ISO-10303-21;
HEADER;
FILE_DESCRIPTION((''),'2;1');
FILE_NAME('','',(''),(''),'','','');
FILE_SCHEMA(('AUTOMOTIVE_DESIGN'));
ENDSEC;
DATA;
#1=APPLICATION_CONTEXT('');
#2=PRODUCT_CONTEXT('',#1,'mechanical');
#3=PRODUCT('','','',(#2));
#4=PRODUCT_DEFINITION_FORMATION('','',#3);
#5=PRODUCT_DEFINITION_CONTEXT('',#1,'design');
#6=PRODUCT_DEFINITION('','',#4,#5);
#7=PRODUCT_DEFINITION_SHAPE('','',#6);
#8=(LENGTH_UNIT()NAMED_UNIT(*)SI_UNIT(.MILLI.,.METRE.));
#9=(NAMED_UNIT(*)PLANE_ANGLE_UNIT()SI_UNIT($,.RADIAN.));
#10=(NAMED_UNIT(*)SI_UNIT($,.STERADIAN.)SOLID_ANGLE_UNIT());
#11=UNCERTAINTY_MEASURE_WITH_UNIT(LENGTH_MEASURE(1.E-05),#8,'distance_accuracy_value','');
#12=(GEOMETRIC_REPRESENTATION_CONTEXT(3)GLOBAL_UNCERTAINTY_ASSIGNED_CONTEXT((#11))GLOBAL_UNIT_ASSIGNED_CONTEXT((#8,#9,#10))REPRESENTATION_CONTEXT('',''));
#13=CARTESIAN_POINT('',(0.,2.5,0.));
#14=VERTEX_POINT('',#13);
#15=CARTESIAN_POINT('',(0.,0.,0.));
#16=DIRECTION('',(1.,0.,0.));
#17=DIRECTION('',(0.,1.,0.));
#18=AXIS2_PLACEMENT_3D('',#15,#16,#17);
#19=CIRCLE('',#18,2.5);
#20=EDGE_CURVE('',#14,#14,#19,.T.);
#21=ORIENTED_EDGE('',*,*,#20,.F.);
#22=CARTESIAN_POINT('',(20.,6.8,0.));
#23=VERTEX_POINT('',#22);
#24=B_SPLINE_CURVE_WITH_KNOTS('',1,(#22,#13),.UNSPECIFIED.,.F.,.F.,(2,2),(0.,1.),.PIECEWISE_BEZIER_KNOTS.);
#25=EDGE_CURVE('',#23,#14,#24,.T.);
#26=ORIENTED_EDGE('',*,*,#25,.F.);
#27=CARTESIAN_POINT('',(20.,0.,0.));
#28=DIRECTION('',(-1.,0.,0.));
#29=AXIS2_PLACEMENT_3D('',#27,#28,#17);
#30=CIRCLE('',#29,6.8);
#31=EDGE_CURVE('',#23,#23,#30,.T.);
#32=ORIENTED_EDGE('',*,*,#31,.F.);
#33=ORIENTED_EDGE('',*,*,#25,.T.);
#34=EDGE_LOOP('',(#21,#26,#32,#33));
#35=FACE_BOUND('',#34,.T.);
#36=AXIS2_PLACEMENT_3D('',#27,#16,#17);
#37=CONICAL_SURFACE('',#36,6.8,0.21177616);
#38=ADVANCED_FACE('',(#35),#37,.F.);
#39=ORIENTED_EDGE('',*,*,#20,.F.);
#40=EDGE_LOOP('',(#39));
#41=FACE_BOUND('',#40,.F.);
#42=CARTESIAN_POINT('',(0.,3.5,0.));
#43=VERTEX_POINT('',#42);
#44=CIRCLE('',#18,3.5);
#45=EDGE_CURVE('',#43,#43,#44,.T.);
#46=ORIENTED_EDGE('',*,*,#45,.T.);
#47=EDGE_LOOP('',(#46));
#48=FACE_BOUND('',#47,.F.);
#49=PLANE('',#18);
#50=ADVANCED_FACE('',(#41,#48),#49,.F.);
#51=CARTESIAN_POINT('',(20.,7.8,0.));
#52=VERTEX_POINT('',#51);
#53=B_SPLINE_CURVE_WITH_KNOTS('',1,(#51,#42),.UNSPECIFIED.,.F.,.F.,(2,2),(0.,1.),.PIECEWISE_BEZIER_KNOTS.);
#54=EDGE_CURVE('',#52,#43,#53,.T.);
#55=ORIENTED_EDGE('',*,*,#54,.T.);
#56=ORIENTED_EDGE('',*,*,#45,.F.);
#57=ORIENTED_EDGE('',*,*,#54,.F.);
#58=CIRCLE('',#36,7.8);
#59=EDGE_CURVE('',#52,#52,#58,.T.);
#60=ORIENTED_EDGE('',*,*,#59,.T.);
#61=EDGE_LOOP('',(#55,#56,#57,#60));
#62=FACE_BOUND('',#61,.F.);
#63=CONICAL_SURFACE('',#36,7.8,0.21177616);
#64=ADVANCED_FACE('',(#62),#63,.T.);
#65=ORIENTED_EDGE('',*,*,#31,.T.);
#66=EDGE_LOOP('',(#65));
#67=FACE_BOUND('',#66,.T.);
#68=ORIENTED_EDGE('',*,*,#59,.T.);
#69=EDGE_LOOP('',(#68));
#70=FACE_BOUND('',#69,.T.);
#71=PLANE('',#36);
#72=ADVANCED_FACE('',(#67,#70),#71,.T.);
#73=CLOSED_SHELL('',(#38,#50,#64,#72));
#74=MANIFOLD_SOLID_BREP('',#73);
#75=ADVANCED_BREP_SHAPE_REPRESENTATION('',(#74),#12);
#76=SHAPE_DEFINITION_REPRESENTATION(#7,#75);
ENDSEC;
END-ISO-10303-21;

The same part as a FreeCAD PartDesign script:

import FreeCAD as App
import Part
import Sketcher

doc = App.newDocument("Part")
body = doc.addObject("PartDesign::Body", "Body")

# Sketch on YZ plane
sketch1 = body.newObject("Sketcher::SketchObject", "Sketch")
sketch1.AttachmentSupport = (doc.getObject("YZ_Plane"), [""])
sketch1.MapMode = "FlatFace"
sketch1.AttachmentOffset = App.Placement(App.Vector(0, 0, 20), App.Rotation())
sketch1.addGeometry(Part.Circle(App.Vector(0, 0, 0), App.Vector(0, 0, 1), 8), False)
sketch1.addConstraint([
    Sketcher.Constraint("Coincident", 0, 3, -1, 1),
    Sketcher.Constraint("Diameter", 0, 15.6),
])

# Sketch on YZ plane
sketch2 = body.newObject("Sketcher::SketchObject", "Sketch001")
sketch2.AttachmentSupport = (doc.getObject("YZ_Plane"), [""])
sketch2.MapMode = "FlatFace"
sketch2.addGeometry(Part.Circle(App.Vector(0, 0, 0), App.Vector(0, 0, 1), 3.5), False)
sketch2.addConstraint([
    Sketcher.Constraint("Coincident", 0, 3, -1, 1),
    Sketcher.Constraint("Diameter", 0, 7.0),
])

additiveloft = body.newObject("PartDesign::AdditiveLoft", "AdditiveLoft")
additiveloft.Profile = sketch1
additiveloft.Sections = [sketch2]

# Sketch on YZ plane
sketch3 = body.newObject("Sketcher::SketchObject", "Sketch002")
sketch3.AttachmentSupport = (doc.getObject("YZ_Plane"), [""])
sketch3.MapMode = "FlatFace"
sketch3.AttachmentOffset = App.Placement(App.Vector(0, 0, 20), App.Rotation())
sketch3.addGeometry(Part.Circle(App.Vector(0, 0, 0), App.Vector(0, 0, 1), 7), False)
sketch3.addConstraint([
    Sketcher.Constraint("Coincident", 0, 3, -1, 1),
    Sketcher.Constraint("Diameter", 0, 13.6),
])

# Sketch on YZ plane
sketch4 = body.newObject("Sketcher::SketchObject", "Sketch003")
sketch4.AttachmentSupport = (doc.getObject("YZ_Plane"), [""])
sketch4.MapMode = "FlatFace"
sketch4.addGeometry(Part.Circle(App.Vector(0, 0, 0), App.Vector(0, 0, 1), 2.5), False)
sketch4.addConstraint([
    Sketcher.Constraint("Coincident", 0, 3, -1, 1),
    Sketcher.Constraint("Diameter", 0, 5.0),
])

subtractiveloft = body.newObject("PartDesign::SubtractiveLoft", "SubtractiveLoft")
subtractiveloft.Profile = sketch3
subtractiveloft.Sections = [sketch4]

doc.recompute()
